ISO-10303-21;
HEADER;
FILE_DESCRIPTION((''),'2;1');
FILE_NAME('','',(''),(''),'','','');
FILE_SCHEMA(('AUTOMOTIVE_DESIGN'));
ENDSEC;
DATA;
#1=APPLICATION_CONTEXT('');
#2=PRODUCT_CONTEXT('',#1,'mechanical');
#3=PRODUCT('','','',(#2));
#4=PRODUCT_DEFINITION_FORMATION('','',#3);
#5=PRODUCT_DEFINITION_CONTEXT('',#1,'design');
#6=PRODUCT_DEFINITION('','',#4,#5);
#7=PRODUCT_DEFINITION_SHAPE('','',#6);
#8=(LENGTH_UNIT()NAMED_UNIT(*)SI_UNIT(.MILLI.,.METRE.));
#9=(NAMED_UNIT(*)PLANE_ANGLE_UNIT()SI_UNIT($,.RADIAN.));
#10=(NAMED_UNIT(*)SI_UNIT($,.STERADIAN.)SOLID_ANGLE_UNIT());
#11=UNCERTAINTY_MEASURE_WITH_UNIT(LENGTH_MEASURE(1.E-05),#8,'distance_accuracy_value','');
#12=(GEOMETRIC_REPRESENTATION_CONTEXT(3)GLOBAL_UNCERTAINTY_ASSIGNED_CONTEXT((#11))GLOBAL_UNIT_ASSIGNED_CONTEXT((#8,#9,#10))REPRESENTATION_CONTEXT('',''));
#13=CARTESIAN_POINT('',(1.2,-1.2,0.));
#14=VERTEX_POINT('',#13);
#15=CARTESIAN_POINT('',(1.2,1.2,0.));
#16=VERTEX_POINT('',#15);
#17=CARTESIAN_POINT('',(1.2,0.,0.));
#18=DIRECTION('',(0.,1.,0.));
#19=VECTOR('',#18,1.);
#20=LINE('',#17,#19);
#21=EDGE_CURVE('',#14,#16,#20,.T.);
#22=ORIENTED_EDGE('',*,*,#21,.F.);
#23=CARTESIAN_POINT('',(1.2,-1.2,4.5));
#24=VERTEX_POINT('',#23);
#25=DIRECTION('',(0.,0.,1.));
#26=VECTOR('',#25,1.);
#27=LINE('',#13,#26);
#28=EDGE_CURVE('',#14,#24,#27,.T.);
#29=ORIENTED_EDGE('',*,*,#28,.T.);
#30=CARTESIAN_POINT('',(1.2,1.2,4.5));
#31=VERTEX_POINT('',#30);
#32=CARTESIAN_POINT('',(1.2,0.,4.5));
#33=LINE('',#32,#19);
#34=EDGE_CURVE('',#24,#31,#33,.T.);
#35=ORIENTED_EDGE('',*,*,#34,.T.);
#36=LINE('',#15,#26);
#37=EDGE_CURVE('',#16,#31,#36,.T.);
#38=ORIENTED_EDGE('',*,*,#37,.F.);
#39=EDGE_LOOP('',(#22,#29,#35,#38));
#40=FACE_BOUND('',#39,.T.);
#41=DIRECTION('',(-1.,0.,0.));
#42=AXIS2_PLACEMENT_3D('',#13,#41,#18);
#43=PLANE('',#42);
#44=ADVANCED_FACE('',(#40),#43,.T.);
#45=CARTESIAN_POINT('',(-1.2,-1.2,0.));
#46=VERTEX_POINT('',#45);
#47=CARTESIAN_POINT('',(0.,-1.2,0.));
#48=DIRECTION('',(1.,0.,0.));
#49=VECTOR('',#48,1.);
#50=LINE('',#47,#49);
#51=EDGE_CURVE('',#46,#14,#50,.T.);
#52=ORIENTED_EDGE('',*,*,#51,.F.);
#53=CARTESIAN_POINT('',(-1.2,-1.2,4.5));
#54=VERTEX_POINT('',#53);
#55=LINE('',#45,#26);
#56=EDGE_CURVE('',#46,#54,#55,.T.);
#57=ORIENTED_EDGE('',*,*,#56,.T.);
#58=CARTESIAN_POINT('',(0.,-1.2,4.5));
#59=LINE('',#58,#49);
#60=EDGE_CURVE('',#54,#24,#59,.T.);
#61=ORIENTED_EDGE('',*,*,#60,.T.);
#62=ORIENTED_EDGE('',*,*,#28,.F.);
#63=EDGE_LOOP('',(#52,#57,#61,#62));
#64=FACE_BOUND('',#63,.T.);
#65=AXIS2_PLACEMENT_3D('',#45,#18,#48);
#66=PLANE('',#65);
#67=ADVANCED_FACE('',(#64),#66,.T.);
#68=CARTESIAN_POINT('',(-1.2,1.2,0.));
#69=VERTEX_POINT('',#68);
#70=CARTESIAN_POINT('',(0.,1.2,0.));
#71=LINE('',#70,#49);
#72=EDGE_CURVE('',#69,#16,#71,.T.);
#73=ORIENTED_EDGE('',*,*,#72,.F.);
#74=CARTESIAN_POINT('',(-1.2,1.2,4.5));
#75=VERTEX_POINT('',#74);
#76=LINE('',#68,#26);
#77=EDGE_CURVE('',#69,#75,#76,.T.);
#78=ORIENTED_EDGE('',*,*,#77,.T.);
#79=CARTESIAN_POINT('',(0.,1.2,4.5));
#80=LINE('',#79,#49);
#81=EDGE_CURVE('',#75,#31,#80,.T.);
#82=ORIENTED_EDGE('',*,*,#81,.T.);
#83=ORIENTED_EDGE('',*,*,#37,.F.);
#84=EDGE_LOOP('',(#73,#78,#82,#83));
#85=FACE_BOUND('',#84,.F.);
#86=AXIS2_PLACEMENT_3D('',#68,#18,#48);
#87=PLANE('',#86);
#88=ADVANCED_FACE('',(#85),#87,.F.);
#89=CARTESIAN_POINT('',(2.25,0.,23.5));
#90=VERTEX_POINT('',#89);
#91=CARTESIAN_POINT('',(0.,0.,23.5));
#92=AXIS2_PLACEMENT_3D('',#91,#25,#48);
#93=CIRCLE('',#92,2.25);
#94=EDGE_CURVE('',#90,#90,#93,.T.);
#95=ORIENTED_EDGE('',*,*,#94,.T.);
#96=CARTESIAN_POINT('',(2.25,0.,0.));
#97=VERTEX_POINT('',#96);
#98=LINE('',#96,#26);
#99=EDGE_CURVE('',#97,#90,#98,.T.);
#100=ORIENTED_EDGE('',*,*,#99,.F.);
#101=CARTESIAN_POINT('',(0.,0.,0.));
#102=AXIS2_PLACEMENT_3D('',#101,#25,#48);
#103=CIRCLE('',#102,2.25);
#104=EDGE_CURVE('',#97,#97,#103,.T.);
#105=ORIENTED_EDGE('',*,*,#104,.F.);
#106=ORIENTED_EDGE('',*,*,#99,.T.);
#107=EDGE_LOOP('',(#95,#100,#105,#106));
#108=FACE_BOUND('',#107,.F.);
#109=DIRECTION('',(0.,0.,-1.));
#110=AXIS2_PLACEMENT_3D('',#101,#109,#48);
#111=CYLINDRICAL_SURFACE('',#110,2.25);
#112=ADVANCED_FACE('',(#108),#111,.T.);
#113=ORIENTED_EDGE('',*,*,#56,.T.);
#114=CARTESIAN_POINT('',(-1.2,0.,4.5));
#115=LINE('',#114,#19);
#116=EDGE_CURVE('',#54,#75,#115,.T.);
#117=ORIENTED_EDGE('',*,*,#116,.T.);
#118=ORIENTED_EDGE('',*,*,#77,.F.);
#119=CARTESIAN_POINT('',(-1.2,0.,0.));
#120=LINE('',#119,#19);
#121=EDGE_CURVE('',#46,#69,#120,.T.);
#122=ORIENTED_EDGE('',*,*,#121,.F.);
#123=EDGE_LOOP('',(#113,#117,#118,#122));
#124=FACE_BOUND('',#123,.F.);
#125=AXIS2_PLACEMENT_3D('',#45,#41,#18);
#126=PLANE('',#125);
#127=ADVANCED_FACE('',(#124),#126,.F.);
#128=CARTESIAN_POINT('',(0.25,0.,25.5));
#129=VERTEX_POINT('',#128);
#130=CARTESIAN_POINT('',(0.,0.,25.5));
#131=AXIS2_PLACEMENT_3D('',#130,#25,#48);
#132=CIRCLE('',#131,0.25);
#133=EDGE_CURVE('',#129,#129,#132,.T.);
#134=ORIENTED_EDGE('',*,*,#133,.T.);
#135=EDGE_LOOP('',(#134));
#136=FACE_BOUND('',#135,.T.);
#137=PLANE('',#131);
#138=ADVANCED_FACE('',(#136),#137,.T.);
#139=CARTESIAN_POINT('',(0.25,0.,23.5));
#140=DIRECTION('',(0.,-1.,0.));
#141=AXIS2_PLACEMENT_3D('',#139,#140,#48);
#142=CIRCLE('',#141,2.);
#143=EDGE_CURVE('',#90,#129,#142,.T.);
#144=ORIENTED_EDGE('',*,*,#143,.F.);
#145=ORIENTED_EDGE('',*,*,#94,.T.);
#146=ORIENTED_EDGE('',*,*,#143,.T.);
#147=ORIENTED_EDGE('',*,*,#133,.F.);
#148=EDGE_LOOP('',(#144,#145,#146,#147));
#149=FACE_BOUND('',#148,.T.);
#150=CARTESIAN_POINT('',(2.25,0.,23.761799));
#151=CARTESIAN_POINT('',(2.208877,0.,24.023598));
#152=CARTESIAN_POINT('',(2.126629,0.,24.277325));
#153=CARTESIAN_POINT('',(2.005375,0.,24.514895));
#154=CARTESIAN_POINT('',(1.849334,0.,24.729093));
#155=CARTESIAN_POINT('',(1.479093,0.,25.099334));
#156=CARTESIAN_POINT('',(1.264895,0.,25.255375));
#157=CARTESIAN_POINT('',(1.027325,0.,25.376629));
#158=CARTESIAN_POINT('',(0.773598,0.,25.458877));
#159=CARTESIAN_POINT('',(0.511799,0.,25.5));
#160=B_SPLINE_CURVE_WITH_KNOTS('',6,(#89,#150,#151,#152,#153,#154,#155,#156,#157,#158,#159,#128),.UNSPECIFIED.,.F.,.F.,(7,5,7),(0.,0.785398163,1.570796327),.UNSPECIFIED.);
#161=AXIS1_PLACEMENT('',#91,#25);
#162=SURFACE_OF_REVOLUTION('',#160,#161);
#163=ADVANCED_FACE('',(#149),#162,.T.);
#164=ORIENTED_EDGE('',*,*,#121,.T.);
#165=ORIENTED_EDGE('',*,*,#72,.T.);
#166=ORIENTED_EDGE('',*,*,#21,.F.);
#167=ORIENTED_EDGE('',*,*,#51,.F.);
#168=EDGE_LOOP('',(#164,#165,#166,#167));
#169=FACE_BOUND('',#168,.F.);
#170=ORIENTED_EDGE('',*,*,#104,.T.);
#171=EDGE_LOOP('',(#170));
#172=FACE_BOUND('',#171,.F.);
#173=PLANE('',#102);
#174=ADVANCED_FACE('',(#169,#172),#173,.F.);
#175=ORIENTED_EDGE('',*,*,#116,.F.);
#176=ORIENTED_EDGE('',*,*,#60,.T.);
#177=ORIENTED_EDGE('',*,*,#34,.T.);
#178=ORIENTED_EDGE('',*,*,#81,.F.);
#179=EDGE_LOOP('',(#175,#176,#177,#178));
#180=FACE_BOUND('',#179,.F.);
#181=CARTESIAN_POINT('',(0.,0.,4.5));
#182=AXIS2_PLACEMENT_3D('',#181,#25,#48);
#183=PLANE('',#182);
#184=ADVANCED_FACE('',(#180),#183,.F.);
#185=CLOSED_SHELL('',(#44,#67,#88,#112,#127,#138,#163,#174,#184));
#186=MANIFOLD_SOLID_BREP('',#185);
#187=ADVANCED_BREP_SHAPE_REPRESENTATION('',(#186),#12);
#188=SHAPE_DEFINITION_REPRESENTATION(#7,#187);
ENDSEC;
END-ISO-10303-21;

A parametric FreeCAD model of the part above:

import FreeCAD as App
import Part
import Sketcher

V = App.Vector


def edges_at(feature, points):
    """Names of the edges that pass closest to the given points."""
    edges = feature.Shape.Edges
    near = lambda p: min(range(len(edges)), key=lambda i: edges[i].distToShape(Part.Vertex(*p))[0])
    return sorted({f"Edge{near(p) + 1}" for p in points})


def add_polygon(sketch, points):
    """Adds a closed chain of lines whose ends are joined by coincident constraints."""
    first, n = sketch.GeometryCount, len(points)
    for a, b in zip(points, points[1:] + points[:1]):
        sketch.addGeometry(Part.LineSegment(App.Vector(*a, 0), App.Vector(*b, 0)), False)
    for i in range(n):
        sketch.addConstraint(Sketcher.Constraint("Coincident", first + i, 2, first + (i + 1) % n, 1))

doc = App.newDocument("Part")
body = doc.addObject("PartDesign::Body", "Body")

# Sketch on XY plane
sketch1 = body.newObject("Sketcher::SketchObject", "Sketch")
sketch1.AttachmentSupport = (doc.getObject("XY_Plane"), [""])
sketch1.MapMode = "FlatFace"
sketch1.addGeometry(Part.Circle(V(0, 0, 0), V(0, 0, 1), 2.2), False)
sketch1.addConstraint(Sketcher.Constraint("Coincident", 0, 3, -1, 1))
sketch1.addConstraint(Sketcher.Constraint("Diameter", 0, 4.5))
pad1 = body.newObject("PartDesign::Pad", "Pad")
pad1.Profile = sketch1
pad1.Length = 25.5

# Sketch on XY plane
sketch2 = body.newObject("Sketcher::SketchObject", "Sketch001")
sketch2.AttachmentSupport = (doc.getObject("XY_Plane"), [""])
sketch2.MapMode = "FlatFace"
add_polygon(sketch2, [(-1.2, 1.2), (-1.2, -1.2), (1.2, -1.2), (1.2, 1.2)])  # lines 0-3
sketch2.addConstraint(Sketcher.Constraint("Vertical", 0))
sketch2.addConstraint(Sketcher.Constraint("Horizontal", 1))
sketch2.addConstraint(Sketcher.Constraint("Vertical", 2))
sketch2.addConstraint(Sketcher.Constraint("Horizontal", 3))
sketch2.addConstraint(Sketcher.Constraint("Symmetric", 0, 2, 2, 2, -1, 1))
sketch2.addConstraint(Sketcher.Constraint("Equal", 3, 0))
sketch2.addConstraint(Sketcher.Constraint("DistanceX", 1, 1, 1, 2, 2.4))
pocket1 = body.newObject("PartDesign::Pocket", "Pocket")
pocket1.Profile = sketch2
pocket1.Length = 4.5
pocket1.Reversed = True
doc.recompute()

fillet = body.newObject("PartDesign::Fillet", "Fillet")
fillet.Base = (pocket1, edges_at(pocket1, [(-2.25, 0, 25.5)]))
fillet.Radius = 2

doc.recompute()
